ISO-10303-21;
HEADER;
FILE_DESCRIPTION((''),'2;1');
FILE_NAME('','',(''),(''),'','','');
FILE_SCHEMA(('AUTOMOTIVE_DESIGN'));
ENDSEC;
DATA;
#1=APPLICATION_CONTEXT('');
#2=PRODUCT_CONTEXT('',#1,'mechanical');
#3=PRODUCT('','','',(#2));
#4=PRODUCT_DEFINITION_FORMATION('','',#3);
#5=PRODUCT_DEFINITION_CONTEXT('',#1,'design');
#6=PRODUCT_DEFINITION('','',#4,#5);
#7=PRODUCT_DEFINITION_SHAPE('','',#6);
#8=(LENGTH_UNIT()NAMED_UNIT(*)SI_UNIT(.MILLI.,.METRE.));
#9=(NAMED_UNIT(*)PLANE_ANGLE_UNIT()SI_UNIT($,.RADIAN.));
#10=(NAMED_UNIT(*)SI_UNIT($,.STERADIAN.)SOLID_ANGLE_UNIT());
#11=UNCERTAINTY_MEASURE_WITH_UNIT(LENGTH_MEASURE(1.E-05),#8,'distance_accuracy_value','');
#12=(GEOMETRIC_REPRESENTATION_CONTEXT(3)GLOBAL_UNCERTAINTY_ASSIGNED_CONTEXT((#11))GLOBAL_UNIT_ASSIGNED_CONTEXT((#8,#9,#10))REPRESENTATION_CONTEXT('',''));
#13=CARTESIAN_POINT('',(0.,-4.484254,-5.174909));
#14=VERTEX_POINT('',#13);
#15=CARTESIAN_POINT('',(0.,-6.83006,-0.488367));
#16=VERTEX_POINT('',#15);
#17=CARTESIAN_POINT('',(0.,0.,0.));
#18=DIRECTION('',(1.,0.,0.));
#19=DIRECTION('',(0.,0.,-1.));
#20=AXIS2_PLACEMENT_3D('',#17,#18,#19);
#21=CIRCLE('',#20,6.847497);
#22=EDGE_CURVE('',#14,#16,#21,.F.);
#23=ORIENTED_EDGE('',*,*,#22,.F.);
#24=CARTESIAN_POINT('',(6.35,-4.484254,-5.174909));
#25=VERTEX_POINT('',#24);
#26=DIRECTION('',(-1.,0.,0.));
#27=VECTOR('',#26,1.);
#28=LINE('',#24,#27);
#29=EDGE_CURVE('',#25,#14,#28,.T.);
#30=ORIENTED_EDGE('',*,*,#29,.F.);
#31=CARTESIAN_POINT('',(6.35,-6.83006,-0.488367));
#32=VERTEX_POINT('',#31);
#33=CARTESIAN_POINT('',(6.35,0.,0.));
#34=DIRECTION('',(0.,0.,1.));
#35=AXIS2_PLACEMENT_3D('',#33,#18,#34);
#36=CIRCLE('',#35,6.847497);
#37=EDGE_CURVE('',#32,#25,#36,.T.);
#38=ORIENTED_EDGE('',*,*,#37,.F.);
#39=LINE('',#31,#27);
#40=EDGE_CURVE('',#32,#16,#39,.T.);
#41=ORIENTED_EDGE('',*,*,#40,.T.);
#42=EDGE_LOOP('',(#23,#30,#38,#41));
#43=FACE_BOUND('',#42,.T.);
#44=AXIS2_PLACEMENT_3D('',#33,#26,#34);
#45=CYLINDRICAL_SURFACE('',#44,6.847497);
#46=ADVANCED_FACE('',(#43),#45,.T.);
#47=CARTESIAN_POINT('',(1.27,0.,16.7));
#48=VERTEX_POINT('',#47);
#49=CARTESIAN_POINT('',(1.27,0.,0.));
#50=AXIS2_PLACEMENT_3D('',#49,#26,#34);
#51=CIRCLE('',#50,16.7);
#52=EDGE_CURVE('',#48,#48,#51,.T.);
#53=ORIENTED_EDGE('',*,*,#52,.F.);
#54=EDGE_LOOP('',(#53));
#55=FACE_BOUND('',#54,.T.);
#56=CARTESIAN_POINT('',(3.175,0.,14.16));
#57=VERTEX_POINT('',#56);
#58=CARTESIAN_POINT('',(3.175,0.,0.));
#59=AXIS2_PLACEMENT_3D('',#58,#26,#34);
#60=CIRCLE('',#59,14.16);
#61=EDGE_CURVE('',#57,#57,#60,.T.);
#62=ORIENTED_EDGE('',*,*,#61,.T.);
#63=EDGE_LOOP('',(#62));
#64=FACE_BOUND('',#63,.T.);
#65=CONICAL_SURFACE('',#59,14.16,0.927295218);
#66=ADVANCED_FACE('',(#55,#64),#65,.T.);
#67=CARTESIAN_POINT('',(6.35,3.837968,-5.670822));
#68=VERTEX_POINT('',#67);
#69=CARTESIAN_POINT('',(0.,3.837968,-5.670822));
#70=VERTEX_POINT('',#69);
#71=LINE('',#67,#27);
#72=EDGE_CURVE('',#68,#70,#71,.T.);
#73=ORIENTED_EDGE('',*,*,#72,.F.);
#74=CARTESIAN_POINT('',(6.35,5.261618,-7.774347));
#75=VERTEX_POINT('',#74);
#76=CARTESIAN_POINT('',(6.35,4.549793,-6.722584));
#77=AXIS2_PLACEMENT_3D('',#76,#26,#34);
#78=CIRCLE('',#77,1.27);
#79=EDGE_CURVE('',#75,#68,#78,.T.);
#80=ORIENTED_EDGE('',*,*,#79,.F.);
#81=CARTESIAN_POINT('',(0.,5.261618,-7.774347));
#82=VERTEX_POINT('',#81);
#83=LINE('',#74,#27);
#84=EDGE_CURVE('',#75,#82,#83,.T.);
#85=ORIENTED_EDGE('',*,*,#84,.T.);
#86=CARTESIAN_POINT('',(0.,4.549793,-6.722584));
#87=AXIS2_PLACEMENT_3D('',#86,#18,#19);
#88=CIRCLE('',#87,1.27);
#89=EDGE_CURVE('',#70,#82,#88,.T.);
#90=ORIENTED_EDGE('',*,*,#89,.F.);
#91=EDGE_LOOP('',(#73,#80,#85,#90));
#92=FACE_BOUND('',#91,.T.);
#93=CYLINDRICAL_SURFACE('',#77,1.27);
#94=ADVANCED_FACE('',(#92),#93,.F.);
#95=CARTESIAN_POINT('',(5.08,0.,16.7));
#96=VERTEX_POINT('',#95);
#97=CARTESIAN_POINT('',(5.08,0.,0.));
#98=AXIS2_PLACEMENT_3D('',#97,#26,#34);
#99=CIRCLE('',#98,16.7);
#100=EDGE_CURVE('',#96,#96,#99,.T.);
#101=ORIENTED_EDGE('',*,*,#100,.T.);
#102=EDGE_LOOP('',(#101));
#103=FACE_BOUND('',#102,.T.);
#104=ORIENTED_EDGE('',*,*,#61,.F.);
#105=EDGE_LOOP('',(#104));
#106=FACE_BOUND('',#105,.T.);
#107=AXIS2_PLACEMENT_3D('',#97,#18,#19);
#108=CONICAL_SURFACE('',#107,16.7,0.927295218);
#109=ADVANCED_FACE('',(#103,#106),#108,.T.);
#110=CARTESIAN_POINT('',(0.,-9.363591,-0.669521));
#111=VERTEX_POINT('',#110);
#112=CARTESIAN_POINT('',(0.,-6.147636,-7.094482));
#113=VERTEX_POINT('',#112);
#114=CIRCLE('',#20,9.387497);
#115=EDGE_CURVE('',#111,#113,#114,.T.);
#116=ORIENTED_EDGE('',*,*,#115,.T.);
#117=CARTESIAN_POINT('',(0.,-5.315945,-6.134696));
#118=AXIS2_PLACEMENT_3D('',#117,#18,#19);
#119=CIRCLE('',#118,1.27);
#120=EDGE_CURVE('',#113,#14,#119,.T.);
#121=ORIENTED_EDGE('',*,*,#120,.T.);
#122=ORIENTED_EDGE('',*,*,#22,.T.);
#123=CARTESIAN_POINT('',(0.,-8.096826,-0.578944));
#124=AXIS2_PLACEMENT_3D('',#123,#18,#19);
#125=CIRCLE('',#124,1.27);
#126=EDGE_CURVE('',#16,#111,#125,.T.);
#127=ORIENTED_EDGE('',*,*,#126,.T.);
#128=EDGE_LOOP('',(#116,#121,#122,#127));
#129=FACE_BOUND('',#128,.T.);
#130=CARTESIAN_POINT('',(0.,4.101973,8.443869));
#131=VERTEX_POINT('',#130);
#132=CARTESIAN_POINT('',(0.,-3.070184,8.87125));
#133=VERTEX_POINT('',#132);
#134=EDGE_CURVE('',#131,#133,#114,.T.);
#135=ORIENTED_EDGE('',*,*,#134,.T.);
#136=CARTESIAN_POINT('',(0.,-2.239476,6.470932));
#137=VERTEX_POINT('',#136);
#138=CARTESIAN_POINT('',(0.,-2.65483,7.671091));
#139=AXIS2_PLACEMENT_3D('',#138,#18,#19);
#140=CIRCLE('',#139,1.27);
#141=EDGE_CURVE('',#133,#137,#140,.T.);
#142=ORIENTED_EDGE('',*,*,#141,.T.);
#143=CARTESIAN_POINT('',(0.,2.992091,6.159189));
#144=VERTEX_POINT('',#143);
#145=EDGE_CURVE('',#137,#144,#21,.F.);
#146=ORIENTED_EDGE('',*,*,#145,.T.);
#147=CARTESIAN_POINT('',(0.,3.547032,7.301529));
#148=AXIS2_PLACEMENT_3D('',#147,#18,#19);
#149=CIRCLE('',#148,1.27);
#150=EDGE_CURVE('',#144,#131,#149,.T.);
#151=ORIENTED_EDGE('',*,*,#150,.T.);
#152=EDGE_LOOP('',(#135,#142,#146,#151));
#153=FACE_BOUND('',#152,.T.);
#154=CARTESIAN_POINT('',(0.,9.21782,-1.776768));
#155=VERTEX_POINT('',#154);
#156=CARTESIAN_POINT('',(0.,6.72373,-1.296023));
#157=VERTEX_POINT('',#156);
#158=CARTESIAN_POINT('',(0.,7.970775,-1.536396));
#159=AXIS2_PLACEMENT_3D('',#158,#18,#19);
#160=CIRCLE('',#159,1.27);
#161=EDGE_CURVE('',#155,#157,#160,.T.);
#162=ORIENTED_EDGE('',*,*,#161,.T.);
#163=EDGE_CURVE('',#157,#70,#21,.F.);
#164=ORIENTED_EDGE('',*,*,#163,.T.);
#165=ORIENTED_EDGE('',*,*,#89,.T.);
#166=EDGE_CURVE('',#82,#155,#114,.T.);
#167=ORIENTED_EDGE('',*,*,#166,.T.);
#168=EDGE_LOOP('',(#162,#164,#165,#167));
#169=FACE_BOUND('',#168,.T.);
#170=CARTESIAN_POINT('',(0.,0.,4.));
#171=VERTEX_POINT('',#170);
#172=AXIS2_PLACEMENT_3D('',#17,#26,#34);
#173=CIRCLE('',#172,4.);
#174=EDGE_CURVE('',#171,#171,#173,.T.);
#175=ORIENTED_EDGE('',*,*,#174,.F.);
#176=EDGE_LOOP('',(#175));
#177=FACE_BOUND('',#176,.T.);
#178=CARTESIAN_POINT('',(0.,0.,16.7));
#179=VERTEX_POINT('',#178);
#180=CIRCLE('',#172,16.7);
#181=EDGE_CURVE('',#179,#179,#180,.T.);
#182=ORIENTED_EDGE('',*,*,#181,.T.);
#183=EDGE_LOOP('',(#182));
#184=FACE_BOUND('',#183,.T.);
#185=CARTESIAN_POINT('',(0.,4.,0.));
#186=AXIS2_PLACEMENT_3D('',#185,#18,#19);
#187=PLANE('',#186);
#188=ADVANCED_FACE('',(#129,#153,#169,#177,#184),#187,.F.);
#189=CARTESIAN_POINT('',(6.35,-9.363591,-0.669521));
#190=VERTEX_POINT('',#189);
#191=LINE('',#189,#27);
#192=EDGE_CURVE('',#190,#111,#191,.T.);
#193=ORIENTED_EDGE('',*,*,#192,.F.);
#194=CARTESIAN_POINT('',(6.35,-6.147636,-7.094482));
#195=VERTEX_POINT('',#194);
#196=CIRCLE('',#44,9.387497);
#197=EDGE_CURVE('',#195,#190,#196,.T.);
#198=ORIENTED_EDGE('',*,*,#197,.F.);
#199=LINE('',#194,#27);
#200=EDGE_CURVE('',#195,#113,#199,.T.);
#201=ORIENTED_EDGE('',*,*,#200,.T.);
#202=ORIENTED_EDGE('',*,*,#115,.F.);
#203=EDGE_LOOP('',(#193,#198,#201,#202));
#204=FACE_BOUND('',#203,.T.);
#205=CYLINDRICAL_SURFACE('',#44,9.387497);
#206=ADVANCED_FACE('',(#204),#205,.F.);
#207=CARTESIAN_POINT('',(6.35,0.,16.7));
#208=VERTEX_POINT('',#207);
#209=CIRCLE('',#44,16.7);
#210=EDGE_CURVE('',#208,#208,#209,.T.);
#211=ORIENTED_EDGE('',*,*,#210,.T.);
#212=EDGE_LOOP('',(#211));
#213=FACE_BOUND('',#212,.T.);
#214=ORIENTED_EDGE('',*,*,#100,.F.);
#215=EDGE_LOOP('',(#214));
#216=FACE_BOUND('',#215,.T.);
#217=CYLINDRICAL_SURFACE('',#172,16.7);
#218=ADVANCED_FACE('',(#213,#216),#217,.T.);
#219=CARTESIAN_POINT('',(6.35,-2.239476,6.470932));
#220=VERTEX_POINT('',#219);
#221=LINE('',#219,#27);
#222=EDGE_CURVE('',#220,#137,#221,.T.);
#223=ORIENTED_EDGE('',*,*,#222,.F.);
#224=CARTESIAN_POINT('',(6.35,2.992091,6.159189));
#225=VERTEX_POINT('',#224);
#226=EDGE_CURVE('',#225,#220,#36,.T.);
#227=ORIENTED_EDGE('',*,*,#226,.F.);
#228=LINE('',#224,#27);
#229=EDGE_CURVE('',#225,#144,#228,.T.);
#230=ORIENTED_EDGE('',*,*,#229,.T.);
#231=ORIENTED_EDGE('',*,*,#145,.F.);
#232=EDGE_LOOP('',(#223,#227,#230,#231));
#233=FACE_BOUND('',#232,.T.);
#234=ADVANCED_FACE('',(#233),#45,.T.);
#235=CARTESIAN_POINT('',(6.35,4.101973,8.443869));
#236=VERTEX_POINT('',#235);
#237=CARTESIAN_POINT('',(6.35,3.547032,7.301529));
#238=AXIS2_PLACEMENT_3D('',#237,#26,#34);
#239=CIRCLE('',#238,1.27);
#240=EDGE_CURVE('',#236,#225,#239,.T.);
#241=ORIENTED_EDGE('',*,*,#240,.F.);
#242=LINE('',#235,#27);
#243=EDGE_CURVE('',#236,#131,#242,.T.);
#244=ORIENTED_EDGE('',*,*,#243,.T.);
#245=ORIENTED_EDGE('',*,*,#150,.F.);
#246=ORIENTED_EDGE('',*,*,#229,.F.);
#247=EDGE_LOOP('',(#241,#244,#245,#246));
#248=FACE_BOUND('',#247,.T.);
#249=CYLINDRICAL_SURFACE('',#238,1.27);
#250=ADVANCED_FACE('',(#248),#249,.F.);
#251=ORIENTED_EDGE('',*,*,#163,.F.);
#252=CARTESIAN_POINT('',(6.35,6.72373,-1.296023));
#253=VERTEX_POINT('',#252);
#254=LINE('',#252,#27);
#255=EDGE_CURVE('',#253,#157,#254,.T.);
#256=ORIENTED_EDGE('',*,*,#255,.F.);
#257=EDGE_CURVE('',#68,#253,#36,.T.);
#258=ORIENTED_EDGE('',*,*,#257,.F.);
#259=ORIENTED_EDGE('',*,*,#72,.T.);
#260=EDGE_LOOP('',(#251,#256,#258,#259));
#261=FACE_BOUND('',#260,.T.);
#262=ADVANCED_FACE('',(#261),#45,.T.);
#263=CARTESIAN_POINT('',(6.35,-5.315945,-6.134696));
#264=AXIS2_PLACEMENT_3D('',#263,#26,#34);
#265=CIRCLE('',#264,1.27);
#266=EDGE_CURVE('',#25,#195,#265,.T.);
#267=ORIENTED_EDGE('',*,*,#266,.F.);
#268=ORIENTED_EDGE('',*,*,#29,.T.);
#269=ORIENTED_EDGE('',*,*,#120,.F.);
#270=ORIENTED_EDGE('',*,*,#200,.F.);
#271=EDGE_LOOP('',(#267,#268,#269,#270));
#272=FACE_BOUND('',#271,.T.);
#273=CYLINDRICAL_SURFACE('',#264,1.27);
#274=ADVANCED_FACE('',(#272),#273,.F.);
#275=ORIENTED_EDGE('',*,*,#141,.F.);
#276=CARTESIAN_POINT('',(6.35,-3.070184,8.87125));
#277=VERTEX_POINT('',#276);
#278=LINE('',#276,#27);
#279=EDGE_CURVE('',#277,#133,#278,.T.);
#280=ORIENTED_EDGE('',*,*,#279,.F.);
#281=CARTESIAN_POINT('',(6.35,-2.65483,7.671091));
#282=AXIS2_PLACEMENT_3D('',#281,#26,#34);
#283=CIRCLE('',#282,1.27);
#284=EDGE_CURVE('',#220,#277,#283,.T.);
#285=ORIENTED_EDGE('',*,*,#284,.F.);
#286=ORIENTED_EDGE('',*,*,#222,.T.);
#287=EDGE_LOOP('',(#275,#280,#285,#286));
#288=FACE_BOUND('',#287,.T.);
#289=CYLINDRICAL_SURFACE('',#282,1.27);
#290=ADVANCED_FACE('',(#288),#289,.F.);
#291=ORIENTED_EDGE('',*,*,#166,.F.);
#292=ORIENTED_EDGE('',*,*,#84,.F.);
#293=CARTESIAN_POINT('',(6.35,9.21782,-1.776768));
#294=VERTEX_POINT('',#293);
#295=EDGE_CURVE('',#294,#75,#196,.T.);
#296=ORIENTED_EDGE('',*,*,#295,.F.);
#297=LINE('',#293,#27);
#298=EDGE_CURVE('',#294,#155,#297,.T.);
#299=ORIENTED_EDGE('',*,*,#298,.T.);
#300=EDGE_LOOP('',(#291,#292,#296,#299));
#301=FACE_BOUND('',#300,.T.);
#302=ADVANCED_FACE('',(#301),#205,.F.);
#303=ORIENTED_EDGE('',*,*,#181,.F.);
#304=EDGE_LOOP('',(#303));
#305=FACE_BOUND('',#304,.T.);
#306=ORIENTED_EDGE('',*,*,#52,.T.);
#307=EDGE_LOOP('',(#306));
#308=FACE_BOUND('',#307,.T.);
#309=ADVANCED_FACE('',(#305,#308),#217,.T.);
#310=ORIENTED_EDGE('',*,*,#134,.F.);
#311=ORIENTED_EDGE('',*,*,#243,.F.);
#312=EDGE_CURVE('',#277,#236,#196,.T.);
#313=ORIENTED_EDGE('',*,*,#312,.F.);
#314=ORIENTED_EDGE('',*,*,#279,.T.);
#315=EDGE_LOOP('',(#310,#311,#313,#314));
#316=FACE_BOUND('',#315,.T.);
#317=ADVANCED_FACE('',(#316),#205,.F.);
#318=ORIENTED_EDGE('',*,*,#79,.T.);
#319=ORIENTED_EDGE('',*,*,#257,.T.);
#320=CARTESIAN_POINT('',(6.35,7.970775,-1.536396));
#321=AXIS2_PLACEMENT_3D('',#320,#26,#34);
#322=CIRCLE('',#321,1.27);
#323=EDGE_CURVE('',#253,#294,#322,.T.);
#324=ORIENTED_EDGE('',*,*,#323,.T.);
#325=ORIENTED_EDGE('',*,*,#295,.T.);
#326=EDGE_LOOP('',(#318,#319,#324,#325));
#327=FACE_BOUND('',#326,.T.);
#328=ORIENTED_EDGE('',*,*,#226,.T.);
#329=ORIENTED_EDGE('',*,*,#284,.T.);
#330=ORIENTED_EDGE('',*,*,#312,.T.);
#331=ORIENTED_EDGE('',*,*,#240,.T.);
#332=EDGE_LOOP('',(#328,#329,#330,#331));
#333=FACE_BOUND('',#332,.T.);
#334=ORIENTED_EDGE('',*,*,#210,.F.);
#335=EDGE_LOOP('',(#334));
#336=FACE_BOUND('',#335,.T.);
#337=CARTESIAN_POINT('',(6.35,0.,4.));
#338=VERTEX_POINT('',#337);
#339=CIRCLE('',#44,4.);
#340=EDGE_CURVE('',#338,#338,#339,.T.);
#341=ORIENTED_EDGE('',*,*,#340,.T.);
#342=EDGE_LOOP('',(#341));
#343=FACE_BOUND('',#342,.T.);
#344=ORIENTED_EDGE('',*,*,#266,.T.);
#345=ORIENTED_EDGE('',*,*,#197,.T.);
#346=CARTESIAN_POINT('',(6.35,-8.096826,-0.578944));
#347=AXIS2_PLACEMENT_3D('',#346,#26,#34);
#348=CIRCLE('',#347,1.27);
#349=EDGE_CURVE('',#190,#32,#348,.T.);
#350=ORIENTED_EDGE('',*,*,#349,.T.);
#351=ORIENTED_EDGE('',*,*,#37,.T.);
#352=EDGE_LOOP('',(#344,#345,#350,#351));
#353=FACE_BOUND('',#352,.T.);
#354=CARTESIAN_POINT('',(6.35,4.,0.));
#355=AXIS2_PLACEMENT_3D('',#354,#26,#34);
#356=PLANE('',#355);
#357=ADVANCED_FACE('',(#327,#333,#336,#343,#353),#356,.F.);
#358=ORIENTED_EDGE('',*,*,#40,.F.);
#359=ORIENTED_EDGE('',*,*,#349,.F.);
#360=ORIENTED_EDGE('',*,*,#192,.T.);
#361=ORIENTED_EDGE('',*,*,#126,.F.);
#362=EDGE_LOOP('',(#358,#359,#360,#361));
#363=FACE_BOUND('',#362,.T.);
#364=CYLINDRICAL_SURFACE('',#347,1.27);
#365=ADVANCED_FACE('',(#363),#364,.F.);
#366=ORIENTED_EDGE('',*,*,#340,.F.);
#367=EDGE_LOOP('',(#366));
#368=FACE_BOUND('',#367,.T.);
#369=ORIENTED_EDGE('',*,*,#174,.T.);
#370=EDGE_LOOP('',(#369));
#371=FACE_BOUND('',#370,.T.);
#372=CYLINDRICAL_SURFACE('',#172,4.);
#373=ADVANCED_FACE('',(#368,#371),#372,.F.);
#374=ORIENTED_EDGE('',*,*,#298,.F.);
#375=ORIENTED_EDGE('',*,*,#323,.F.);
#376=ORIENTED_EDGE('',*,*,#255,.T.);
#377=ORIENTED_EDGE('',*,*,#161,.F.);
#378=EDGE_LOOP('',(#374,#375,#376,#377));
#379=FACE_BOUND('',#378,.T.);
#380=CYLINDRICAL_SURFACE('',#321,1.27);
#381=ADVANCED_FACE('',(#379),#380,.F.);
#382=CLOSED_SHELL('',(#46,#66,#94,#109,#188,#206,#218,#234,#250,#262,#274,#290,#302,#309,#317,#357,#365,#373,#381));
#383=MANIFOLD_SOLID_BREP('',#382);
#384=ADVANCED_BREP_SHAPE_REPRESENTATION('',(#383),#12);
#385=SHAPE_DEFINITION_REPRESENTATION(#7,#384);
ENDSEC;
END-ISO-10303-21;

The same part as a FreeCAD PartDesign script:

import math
import FreeCAD as App
import Part
import Sketcher
Q = App.Units.Quantity

doc = App.newDocument("Part")
params = doc.addObject("Spreadsheet::Sheet", "Params")
for row, (alias, value) in enumerate([
    ("sketch1_height", "0.5 in"),
    ("sketch1_width", "0.05 in"),
    ("sketch1_width2", "0.25 in"),
    ("revolution_angle", "360 deg"),
    ("sketch2_radius", "0.05 in"),
], start=1):
    params.set(f"A{row}", alias)
    params.set(f"B{row}", "=" + value)
    params.setAlias(f"B{row}", alias)

body = doc.addObject("PartDesign::Body", "Body")

sketch1 = body.newObject("Sketcher::SketchObject", "Sketch")
sketch1.AttachmentSupport = (doc.getObject("XY_Plane"), [""])
sketch1.MapMode = "FlatFace"
sketch1.addGeometry([
    Part.LineSegment(App.Vector(3.175, 14.16, 0), App.Vector(1.27, 16.7, 0)),
    Part.LineSegment(App.Vector(1.27, 16.7, 0), App.Vector(0, 16.7, 0)),
    Part.LineSegment(App.Vector(0, 16.7, 0), App.Vector(0, 4, 0)),
    Part.LineSegment(App.Vector(0, 4, 0), App.Vector(6.35, 4, 0)),
    Part.LineSegment(App.Vector(6.35, 4, 0), App.Vector(6.35, 16.7, 0)),
    Part.LineSegment(App.Vector(6.35, 16.7, 0), App.Vector(5.08, 16.7, 0)),
    Part.LineSegment(App.Vector(5.08, 16.7, 0), App.Vector(3.175, 14.16, 0)),
], False)
sketch1.addConstraint([
    Sketcher.Constraint("Coincident", 0, 2, 1, 1),
    Sketcher.Constraint("Coincident", 1, 2, 2, 1),
    Sketcher.Constraint("Coincident", 2, 2, 3, 1),
    Sketcher.Constraint("Coincident", 3, 2, 4, 1),
    Sketcher.Constraint("Coincident", 4, 2, 5, 1),
    Sketcher.Constraint("Coincident", 5, 2, 6, 1),
    Sketcher.Constraint("Coincident", 6, 2, 0, 1),
    Sketcher.Constraint("Horizontal", 1),
    Sketcher.Constraint("Vertical", 2),
    Sketcher.Constraint("Horizontal", 3),
    Sketcher.Constraint("Vertical", 4),
    Sketcher.Constraint("Horizontal", 5),
    Sketcher.Constraint("PointOnObject", 1, 2, -2),
    Sketcher.Constraint("Horizontal", 1, 2, 4, 2),
    Sketcher.Constraint("Equal", 1, 5),
    Sketcher.Constraint("Equal", 0, 6),
    Sketcher.Constraint("DistanceY", 2, 2, 2, 1, Q("0.5 in")),
    Sketcher.Constraint("DistanceX", 1, 2, 1, 1, Q("0.05 in")),
    Sketcher.Constraint("DistanceX", 3, 1, 3, 2, Q("0.25 in")),
    Sketcher.Constraint("DistanceY", 6, 2, 0, 2, Q("0.1 in")),
    Sketcher.Constraint("DistanceY", -1, 1, 0, 2, 16.7),
])
sketch1.setExpression("Constraints[16]", "Params.sketch1_height")
sketch1.setExpression("Constraints[17]", "Params.sketch1_width")
sketch1.setExpression("Constraints[18]", "Params.sketch1_width2")
revolution = body.newObject("PartDesign::Revolution", "Revolution")
revolution.Profile = sketch1
revolution.ReferenceAxis = (sketch1, ["H_Axis"])
revolution.setExpression("Angle", "Params.revolution_angle")

sketch2 = body.newObject("Sketcher::SketchObject", "Sketch001")
sketch2.AttachmentSupport = (doc.getObject("YZ_Plane"), [""])
sketch2.MapMode = "FlatFace"
sketch2.addGeometry([
    Part.ArcOfCircle(Part.Circle(App.Vector(-5.315945, -6.134696, 0), App.Vector(0, 0, 1), 1.27), math.radians(-130.910162), math.radians(49.089838)),
    Part.ArcOfCircle(Part.Circle(App.Vector(0, 0, 0), App.Vector(0, 0, 1), 9.387497), math.radians(-175.910162), math.radians(-130.910162)),
    Part.ArcOfCircle(Part.Circle(App.Vector(-8.096826, -0.578944, 0), App.Vector(0, 0, 1), 1.27), math.radians(4.089838), math.radians(184.089838)),
    Part.ArcOfCircle(Part.Circle(App.Vector(0, 0, 0), App.Vector(0, 0, 1), 6.847497), math.radians(-175.910162), math.radians(-130.910162)),
    Part.ArcOfCircle(Part.Circle(App.Vector(7.970775, -1.536396, 0), App.Vector(0, 0, 1), 1.27), math.radians(-10.910162), math.radians(169.089838)),
    Part.ArcOfCircle(Part.Circle(App.Vector(0, 0, 0), App.Vector(0, 0, 1), 9.387497), math.radians(-55.910162), math.radians(-10.910162)),
    Part.ArcOfCircle(Part.Circle(App.Vector(4.549793, -6.722584, 0), App.Vector(0, 0, 1), 1.27), math.radians(124.089838), math.radians(304.089838)),
    Part.ArcOfCircle(Part.Circle(App.Vector(0, 0, 0), App.Vector(0, 0, 1), 6.847497), math.radians(-55.910162), math.radians(-10.910162)),
    Part.ArcOfCircle(Part.Circle(App.Vector(-2.65483, 7.671091, 0), App.Vector(0, 0, 1), 1.27), math.radians(109.089838), math.radians(289.089838)),
    Part.ArcOfCircle(Part.Circle(App.Vector(0, 0, 0), App.Vector(0, 0, 1), 9.387497), math.radians(64.089838), math.radians(109.089838)),
    Part.ArcOfCircle(Part.Circle(App.Vector(3.547032, 7.301529, 0), App.Vector(0, 0, 1), 1.27), math.radians(-115.910162), math.radians(64.089837)),
    Part.ArcOfCircle(Part.Circle(App.Vector(0, 0, 0), App.Vector(0, 0, 1), 6.847497), math.radians(64.089838), math.radians(109.089838)),
], False)
sketch2.addConstraint([
    Sketcher.Constraint("Tangent", 0, 1, 1, 2),
    Sketcher.Constraint("Tangent", 1, 1, 2, 2),
    Sketcher.Constraint("Tangent", 2, 1, 3, 1),
    Sketcher.Constraint("Tangent", 3, 2, 0, 2),
    Sketcher.Constraint("Tangent", 4, 1, 5, 2),
    Sketcher.Constraint("Tangent", 5, 1, 6, 2),
    Sketcher.Constraint("Tangent", 6, 1, 7, 1),
    Sketcher.Constraint("Tangent", 7, 2, 4, 2),
    Sketcher.Constraint("Tangent", 8, 1, 9, 2),
    Sketcher.Constraint("Tangent", 9, 1, 10, 2),
    Sketcher.Constraint("Tangent", 10, 1, 11, 1),
    Sketcher.Constraint("Tangent", 11, 2, 8, 2),
    Sketcher.Constraint("Coincident", 1, 3, -1, 1),
    Sketcher.Constraint("Coincident", 3, 3, -1, 1),
    Sketcher.Constraint("Coincident", 5, 3, -1, 1),
    Sketcher.Constraint("Coincident", 7, 3, -1, 1),
    Sketcher.Constraint("Coincident", 9, 3, -1, 1),
    Sketcher.Constraint("Coincident", 11, 3, -1, 1),
    Sketcher.Constraint("Equal", 2, 4),
    Sketcher.Constraint("Equal", 1, 5),
    Sketcher.Constraint("Equal", 6, 8),
    Sketcher.Constraint("Equal", 5, 9),
    Sketcher.Constraint("Radius", 0, Q("0.05 in")),
    Sketcher.Constraint("DistanceX", 2, 1, -1, 1, Q("0.2689 in")),
    Sketcher.Constraint("Radius", 1, 9.387497),
    Sketcher.Constraint("DistanceX", 1, 1, 3, 2, Q("0.1920999 in")),
    Sketcher.Constraint("DistanceY", 10, 3, 8, 1, Q("0.0618 in")),
    Sketcher.Constraint("DistanceY", 0, 3, 4, 3, 4.5983),
    Sketcher.Constraint("DistanceX", 5, 1, 4, 1, 3.956201),
    Sketcher.Constraint("DistanceX", 8, 3, -1, 1, 2.65483),
])
sketch2.setExpression("Constraints[22]", "Params.sketch2_radius")
pocket1 = body.newObject("PartDesign::Pocket", "Pocket")
pocket1.Profile = sketch2
pocket1.Type = "ThroughAll"
pocket1.Midplane = True

doc.recompute()
